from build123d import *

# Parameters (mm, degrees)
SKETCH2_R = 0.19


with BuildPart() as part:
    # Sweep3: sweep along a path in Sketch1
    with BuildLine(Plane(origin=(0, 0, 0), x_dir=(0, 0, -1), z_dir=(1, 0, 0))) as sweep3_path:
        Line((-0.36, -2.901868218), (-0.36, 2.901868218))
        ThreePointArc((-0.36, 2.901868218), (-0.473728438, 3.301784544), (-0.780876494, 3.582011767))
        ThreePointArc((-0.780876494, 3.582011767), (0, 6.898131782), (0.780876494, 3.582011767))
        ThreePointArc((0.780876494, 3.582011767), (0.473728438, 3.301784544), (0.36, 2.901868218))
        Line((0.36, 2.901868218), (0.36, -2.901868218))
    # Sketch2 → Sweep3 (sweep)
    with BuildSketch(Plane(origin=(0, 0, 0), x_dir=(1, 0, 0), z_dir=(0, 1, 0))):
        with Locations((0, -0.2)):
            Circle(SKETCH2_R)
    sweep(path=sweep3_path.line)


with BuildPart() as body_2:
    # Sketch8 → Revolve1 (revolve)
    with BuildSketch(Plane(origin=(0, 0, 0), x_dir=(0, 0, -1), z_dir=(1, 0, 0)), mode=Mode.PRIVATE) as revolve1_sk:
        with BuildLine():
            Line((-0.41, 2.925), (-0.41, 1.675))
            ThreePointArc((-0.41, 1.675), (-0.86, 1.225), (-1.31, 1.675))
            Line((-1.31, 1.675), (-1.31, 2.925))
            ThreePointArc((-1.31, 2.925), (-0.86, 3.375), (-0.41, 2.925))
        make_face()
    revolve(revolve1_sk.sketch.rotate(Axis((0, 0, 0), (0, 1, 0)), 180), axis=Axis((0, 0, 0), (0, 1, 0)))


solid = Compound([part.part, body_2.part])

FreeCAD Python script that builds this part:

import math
import FreeCAD as App
import Part
import Sketcher
from FreeCAD import Vector
Q = App.Units.Quantity

doc = App.newDocument("Part")
params = doc.addObject("Spreadsheet::Sheet", "Params")
for row, (alias, value) in enumerate([
    ("sketch1_diameter", "0.38 mm"),
    ("sketch2_radius", "0.76 mm"),
    ("sketch2_radius2", "1.75 mm"),
    ("sketch3_radius", "0.45 mm"),
    ("sketch3_width", "1.25 mm"),
    ("revolution_angle", "360 deg"),
], start=1):
    params.set(f"A{row}", alias)
    params.set(f"B{row}", "=" + value)
    params.setAlias(f"B{row}", alias)

body = doc.addObject("PartDesign::Body", "Body")

sketch1 = body.newObject("Sketcher::SketchObject", "Sketch")
sketch1.AttachmentSupport = (doc.getObject("XZ_Plane"), [""])
sketch1.MapMode = "FlatFace"
sketch1.addGeometry(Part.Circle(Vector(0, 0.2, 0), Vector(0, 0, 1), 0.19), False)
sketch1.addConstraint(Sketcher.Constraint("PointOnObject", 0, 3, -2))
sketch1.addConstraint(Sketcher.Constraint("Diameter", 0, Q("0.38 mm")))
sketch1.addConstraint(Sketcher.Constraint("DistanceY", -1, 1, 0, 3, Q("0.2 mm")))
sketch1.setExpression("Constraints[1]", "Params.sketch1_diameter")

sketch2 = body.newObject("Sketcher::SketchObject", "Sketch001")
sketch2.AttachmentSupport = (doc.getObject("YZ_Plane"), [""])
sketch2.MapMode = "FlatFace"
sketch2.addGeometry(Part.LineSegment(Vector(-2.9, 0.4, 0), Vector(2.9, 0.4, 0)), False)
sketch2.addGeometry(Part.ArcOfCircle(Part.Circle(Vector(2.9, 1.1, 0), Vector(0, 0, 1), 0.8), math.radians(-90), math.radians(-27)), False)
sketch2.addGeometry(Part.ArcOfCircle(Part.Circle(Vector(5.1, 0, 0), Vector(0, 0, 1), 1.8), math.radians(-153), math.radians(153)), False)
sketch2.addGeometry(Part.ArcOfCircle(Part.Circle(Vector(2.9, -1.1, 0), Vector(0, 0, 1), 0.8), math.radians(27), math.radians(90)), False)
sketch2.addGeometry(Part.LineSegment(Vector(2.9, -0.4, 0), Vector(-2.9, -0.4, 0)), False)
sketch2.addConstraint(Sketcher.Constraint("Tangent", 0, 2, 1, 1))
sketch2.addConstraint(Sketcher.Constraint("Tangent", 1, 2, 2, 2))
sketch2.addConstraint(Sketcher.Constraint("Tangent", 2, 1, 3, 1))
sketch2.addConstraint(Sketcher.Constraint("Tangent", 3, 2, 4, 1))
sketch2.addConstraint(Sketcher.Constraint("Horizontal", 0))
sketch2.addConstraint(Sketcher.Constraint("Horizontal", 4))
sketch2.addConstraint(Sketcher.Constraint("Equal", 1, 3))
sketch2.addConstraint(Sketcher.Constraint("Symmetric", 0, 1, 3, 2, -1, 1))
sketch2.addConstraint(Sketcher.Constraint("PointOnObject", 2, 3, -1))
sketch2.addConstraint(Sketcher.Constraint("Vertical", 0, 1, 4, 2))
sketch2.addConstraint(Sketcher.Constraint("Radius", 1, Q("0.76 mm")))
sketch2.addConstraint(Sketcher.Constraint("Radius", 2, Q("1.75 mm")))
sketch2.addConstraint(Sketcher.Constraint("DistanceY", -1, 1, 1, 3, Q("1.12 mm")))
sketch2.addConstraint(Sketcher.Constraint("DistanceX", 0, 1, 2, 3, Q("8.05 mm")))
sketch2.setExpression("Constraints[10]", "Params.sketch2_radius")
sketch2.setExpression("Constraints[11]", "Params.sketch2_radius2")
doc.recompute()

additivepipe = body.newObject("PartDesign::AdditivePipe", "AdditivePipe")
additivepipe.Profile = sketch1
additivepipe.Spine = (sketch2, ["Edge1", "Edge2", "Edge3", "Edge4", "Edge5"])
body2 = doc.addObject("PartDesign::Body", "Body001")

sketch3 = body2.newObject("Sketcher::SketchObject", "Sketch002")
sketch3.AttachmentSupport = (doc.getObject("YZ_Plane001"), [""])
sketch3.MapMode = "FlatFace"
sketch3.addGeometry(Part.LineSegment(Vector(1.68, 0.41, 0), Vector(2.92, 0.41, 0)), False)
sketch3.addGeometry(Part.ArcOfCircle(Part.Circle(Vector(2.92, 0.86, 0), Vector(0, 0, 1), 0.45), math.radians(-90), math.radians(90)), False)
sketch3.addGeometry(Part.LineSegment(Vector(2.92, 1.31, 0), Vector(1.68, 1.31, 0)), False)
sketch3.addGeometry(Part.ArcOfCircle(Part.Circle(Vector(1.68, 0.86, 0), Vector(0, 0, 1), 0.45), math.radians(90), math.radians(270)), False)
sketch3.addConstraint(Sketcher.Constraint("Tangent", 0, 2, 1, 1))
sketch3.addConstraint(Sketcher.Constraint("Tangent", 1, 2, 2, 1))
sketch3.addConstraint(Sketcher.Constraint("Tangent", 2, 2, 3, 1))
sketch3.addConstraint(Sketcher.Constraint("Tangent", 3, 2, 0, 1))
sketch3.addConstraint(Sketcher.Constraint("Horizontal", 0))
sketch3.addConstraint(Sketcher.Constraint("Horizontal", 2))
sketch3.addConstraint(Sketcher.Constraint("Radius", 1, Q("0.45 mm")))
sketch3.addConstraint(Sketcher.Constraint("DistanceX", 0, 1, 0, 2, Q("1.25 mm")))
sketch3.addConstraint(Sketcher.Constraint("DistanceY", -1, 1, 1, 3, Q("0.86 mm")))
sketch3.addConstraint(Sketcher.Constraint("DistanceX", -1, 1, 1, 3, Q("2.925 mm")))
sketch3.setExpression("Constraints[6]", "Params.sketch3_radius")
sketch3.setExpression("Constraints[7]", "Params.sketch3_width")
revolution = body2.newObject("PartDesign::Revolution", "Revolution")
revolution.Profile = sketch3
revolution.ReferenceAxis = (sketch3, ["H_Axis"])
revolution.setExpression("Angle", "Params.revolution_angle")

doc.recompute()
